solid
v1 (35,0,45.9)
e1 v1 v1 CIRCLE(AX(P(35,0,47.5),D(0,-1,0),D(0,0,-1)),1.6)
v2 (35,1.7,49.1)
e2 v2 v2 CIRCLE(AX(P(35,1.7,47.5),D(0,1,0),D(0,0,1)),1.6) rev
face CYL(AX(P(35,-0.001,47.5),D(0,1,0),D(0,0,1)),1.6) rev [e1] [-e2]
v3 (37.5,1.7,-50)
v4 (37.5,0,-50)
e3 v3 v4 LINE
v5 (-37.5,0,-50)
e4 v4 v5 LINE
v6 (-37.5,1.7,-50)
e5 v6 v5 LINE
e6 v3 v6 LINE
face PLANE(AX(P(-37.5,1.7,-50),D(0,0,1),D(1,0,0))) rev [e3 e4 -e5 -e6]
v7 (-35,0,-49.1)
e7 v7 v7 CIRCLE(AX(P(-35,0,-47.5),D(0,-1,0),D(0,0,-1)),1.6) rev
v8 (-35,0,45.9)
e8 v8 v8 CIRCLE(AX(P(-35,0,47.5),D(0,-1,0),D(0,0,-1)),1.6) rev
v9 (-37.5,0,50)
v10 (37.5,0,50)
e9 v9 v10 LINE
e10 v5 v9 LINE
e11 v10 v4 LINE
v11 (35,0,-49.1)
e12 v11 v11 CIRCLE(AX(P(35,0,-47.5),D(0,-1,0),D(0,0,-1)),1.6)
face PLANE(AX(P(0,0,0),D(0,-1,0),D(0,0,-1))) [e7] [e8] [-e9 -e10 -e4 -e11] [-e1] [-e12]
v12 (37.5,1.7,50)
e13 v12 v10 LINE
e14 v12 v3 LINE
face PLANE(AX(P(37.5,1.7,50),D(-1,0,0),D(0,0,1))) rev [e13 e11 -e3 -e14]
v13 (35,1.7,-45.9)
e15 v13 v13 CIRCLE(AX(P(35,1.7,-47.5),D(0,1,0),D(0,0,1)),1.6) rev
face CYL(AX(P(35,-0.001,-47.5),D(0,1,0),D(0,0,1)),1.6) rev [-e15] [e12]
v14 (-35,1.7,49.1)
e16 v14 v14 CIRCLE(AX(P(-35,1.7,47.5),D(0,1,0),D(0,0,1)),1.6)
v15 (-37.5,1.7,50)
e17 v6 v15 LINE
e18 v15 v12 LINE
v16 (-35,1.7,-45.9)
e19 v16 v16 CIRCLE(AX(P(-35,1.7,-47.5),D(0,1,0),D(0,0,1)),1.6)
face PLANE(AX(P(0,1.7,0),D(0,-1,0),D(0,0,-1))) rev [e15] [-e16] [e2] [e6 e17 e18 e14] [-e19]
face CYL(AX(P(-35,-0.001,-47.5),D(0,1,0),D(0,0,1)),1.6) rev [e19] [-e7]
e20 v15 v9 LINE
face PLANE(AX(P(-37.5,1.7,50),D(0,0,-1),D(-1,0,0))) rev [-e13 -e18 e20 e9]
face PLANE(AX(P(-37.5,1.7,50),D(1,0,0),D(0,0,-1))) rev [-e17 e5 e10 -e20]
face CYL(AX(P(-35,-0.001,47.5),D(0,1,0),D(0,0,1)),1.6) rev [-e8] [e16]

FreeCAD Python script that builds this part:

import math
import FreeCAD as App
import Part
import Sketcher
from FreeCAD import Vector


def add_polygon(sketch, points):
    """Adds a closed chain of lines whose ends are joined by coincident constraints."""
    first, n = sketch.GeometryCount, len(points)
    for a, b in zip(points, points[1:] + points[:1]):
        sketch.addGeometry(Part.LineSegment(App.Vector(*a, 0), App.Vector(*b, 0)), False)
    for i in range(n):
        sketch.addConstraint(Sketcher.Constraint("Coincident", first + i, 2, first + (i + 1) % n, 1))

doc = App.newDocument("Part")
body = doc.addObject("PartDesign::Body", "Body")

# Sketch on XZ plane
sketch1 = body.newObject("Sketcher::SketchObject", "Sketch")
sketch1.AttachmentSupport = (doc.getObject("XZ_Plane"), [""])
sketch1.MapMode = "FlatFace"
add_polygon(sketch1, [(-38, -50), (-38, 50), (38, 50), (38, -50)])  # lines 0-3
sketch1.addConstraint(Sketcher.Constraint("Vertical", 0))
sketch1.addConstraint(Sketcher.Constraint("Horizontal", 1))
sketch1.addConstraint(Sketcher.Constraint("Vertical", 2))
sketch1.addConstraint(Sketcher.Constraint("Horizontal", 3))
sketch1.addConstraint(Sketcher.Constraint("Symmetric", 0, 2, 2, 2, -1, 1))
sketch1.addConstraint(Sketcher.Constraint("DistanceX", 1, 1, 1, 2, 75.0))
sketch1.addConstraint(Sketcher.Constraint("DistanceY", 0, 1, 0, 2, 100.0))
pad1 = body.newObject("PartDesign::Pad", "Pad")
pad1.Profile = sketch1
pad1.Length = 1.7
pad1.Reversed = True

# Sketch on XZ plane
sketch2 = body.newObject("Sketcher::SketchObject", "Sketch001")
sketch2.AttachmentSupport = (doc.getObject("XZ_Plane"), [""])
sketch2.MapMode = "FlatFace"
sketch2.AttachmentOffset = App.Placement(Vector(0, 0, -1.7), App.Rotation())
sketch2.addGeometry(Part.ArcOfCircle(Part.Circle(Vector(-35, -47.5, 0), Vector(0, 0, 1), 1.6), math.radians(90), math.radians(360)), False)
sketch2.addGeometry(Part.LineSegment(Vector(-35, -45.9, 0), Vector(-35, -47.5, 0)), False)
sketch2.addGeometry(Part.LineSegment(Vector(-35, -47.5, 0), Vector(-33.4, -47.5, 0)), False)
sketch2.addConstraint(Sketcher.Constraint("Coincident", 0, 1, 1, 1))
sketch2.addConstraint(Sketcher.Constraint("Coincident", 1, 2, 2, 1))
sketch2.addConstraint(Sketcher.Constraint("Coincident", 2, 2, 0, 2))
sketch2.addConstraint(Sketcher.Constraint("Vertical", 1))
sketch2.addConstraint(Sketcher.Constraint("Horizontal", 2))
sketch2.addConstraint(Sketcher.Constraint("Coincident", 1, 2, 0, 3))
sketch2.addConstraint(Sketcher.Constraint("Radius", 0, 1.6))
sketch2.addConstraint(Sketcher.Constraint("DistanceX", 0, 3, -1, 1, 35.0))
sketch2.addConstraint(Sketcher.Constraint("DistanceY", 0, 3, -1, 1, 47.5))
pocket1 = body.newObject("PartDesign::Pocket", "Pocket")
pocket1.Profile = sketch2
pocket1.Type = "UpToFirst"
pocket1.Reversed = True

# Sketch on XZ plane
sketch3 = body.newObject("Sketcher::SketchObject", "Sketch002")
sketch3.AttachmentSupport = (doc.getObject("XZ_Plane"), [""])
sketch3.MapMode = "FlatFace"
sketch3.AttachmentOffset = App.Placement(Vector(0, 0, -1.7), App.Rotation())
sketch3.addGeometry(Part.LineSegment(Vector(-35, -47.5, 0), Vector(-35, -45.9, 0)), False)
sketch3.addGeometry(Part.ArcOfCircle(Part.Circle(Vector(-35, -47.5, 0), Vector(0, 0, 1), 1.6), math.radians(0), math.radians(90)), False)
sketch3.addGeometry(Part.LineSegment(Vector(-33.4, -47.5, 0), Vector(-35, -47.5, 0)), False)
sketch3.addConstraint(Sketcher.Constraint("Coincident", 0, 2, 1, 2))
sketch3.addConstraint(Sketcher.Constraint("Coincident", 1, 1, 2, 1))
sketch3.addConstraint(Sketcher.Constraint("Coincident", 2, 2, 0, 1))
sketch3.addConstraint(Sketcher.Constraint("Vertical", 0))
sketch3.addConstraint(Sketcher.Constraint("Horizontal", 2))
sketch3.addConstraint(Sketcher.Constraint("Coincident", 2, 2, 1, 3))
sketch3.addConstraint(Sketcher.Constraint("Radius", 1, 1.6))
sketch3.addConstraint(Sketcher.Constraint("DistanceX", 1, 3, -1, 1, 35.0))
sketch3.addConstraint(Sketcher.Constraint("DistanceY", 1, 3, -1, 1, 47.5))
pocket2 = body.newObject("PartDesign::Pocket", "Pocket001")
pocket2.Profile = sketch3
pocket2.Type = "UpToFirst"
pocket2.Reversed = True

# Sketch on XZ plane
sketch4 = body.newObject("Sketcher::SketchObject", "Sketch003")
sketch4.AttachmentSupport = (doc.getObject("XZ_Plane"), [""])
sketch4.MapMode = "FlatFace"
sketch4.AttachmentOffset = App.Placement(Vector(0, 0, -1.7), App.Rotation())
sketch4.addGeometry(Part.ArcOfCircle(Part.Circle(Vector(-35, -47.5, 0), Vector(0, 0, 1), 1.6), math.radians(90), math.radians(360)), False)
sketch4.addGeometry(Part.LineSegment(Vector(-35, -45.9, 0), Vector(-35, -47.5, 0)), False)
sketch4.addGeometry(Part.LineSegment(Vector(-35, -47.5, 0), Vector(-33.4, -47.5, 0)), False)
sketch4.addConstraint(Sketcher.Constraint("Coincident", 0, 1, 1, 1))
sketch4.addConstraint(Sketcher.Constraint("Coincident", 1, 2, 2, 1))
sketch4.addConstraint(Sketcher.Constraint("Coincident", 2, 2, 0, 2))
sketch4.addConstraint(Sketcher.Constraint("Vertical", 1))
sketch4.addConstraint(Sketcher.Constraint("Horizontal", 2))
sketch4.addConstraint(Sketcher.Constraint("Coincident", 1, 2, 0, 3))
sketch4.addConstraint(Sketcher.Constraint("Radius", 0, 1.6))
sketch4.addConstraint(Sketcher.Constraint("DistanceX", 0, 3, -1, 1, 35.0))
sketch4.addConstraint(Sketcher.Constraint("DistanceY", 0, 3, -1, 1, 47.5))
pocket3 = body.newObject("PartDesign::Pocket", "Pocket002")
pocket3.Profile = sketch4
pocket3.Length = 1.7
pocket3.Reversed = True

# Sketch on XZ plane
sketch5 = body.newObject("Sketcher::SketchObject", "Sketch004")
sketch5.AttachmentSupport = (doc.getObject("XZ_Plane"), [""])
sketch5.MapMode = "FlatFace"
sketch5.AttachmentOffset = App.Placement(Vector(0, 0, -1.7), App.Rotation())
sketch5.addGeometry(Part.LineSegment(Vector(-35, -47.5, 0), Vector(-35, -45.9, 0)), False)
sketch5.addGeometry(Part.ArcOfCircle(Part.Circle(Vector(-35, -47.5, 0), Vector(0, 0, 1), 1.6), math.radians(0), math.radians(90)), False)
sketch5.addGeometry(Part.LineSegment(Vector(-33.4, -47.5, 0), Vector(-35, -47.5, 0)), False)
sketch5.addConstraint(Sketcher.Constraint("Coincident", 0, 2, 1, 2))
sketch5.addConstraint(Sketcher.Constraint("Coincident", 1, 1, 2, 1))
sketch5.addConstraint(Sketcher.Constraint("Coincident", 2, 2, 0, 1))
sketch5.addConstraint(Sketcher.Constraint("Vertical", 0))
sketch5.addConstraint(Sketcher.Constraint("Horizontal", 2))
sketch5.addConstraint(Sketcher.Constraint("Coincident", 2, 2, 1, 3))
sketch5.addConstraint(Sketcher.Constraint("Radius", 1, 1.6))
sketch5.addConstraint(Sketcher.Constraint("DistanceX", 1, 3, -1, 1, 35.0))
sketch5.addConstraint(Sketcher.Constraint("DistanceY", 1, 3, -1, 1, 47.5))
pocket4 = body.newObject("PartDesign::Pocket", "Pocket003")
pocket4.Profile = sketch5
pocket4.Length = 1.7
pocket4.Reversed = True

# Sketch on XZ plane
sketch6 = body.newObject("Sketcher::SketchObject", "Sketch005")
sketch6.AttachmentSupport = (doc.getObject("XZ_Plane"), [""])
sketch6.MapMode = "FlatFace"
sketch6.AttachmentOffset = App.Placement(Vector(0, 0, -1.7), App.Rotation())
sketch6.addGeometry(Part.ArcOfCircle(Part.Circle(Vector(35, -47.5, 0), Vector(0, 0, 1), 1.6), math.radians(90), math.radians(180)), False)
sketch6.addGeometry(Part.LineSegment(Vector(35, -45.9, 0), Vector(35, -47.5, 0)), False)
sketch6.addGeometry(Part.LineSegment(Vector(35, -47.5, 0), Vector(33.4, -47.5, 0)), False)
sketch6.addConstraint(Sketcher.Constraint("Coincident", 0, 1, 1, 1))
sketch6.addConstraint(Sketcher.Constraint("Coincident", 1, 2, 2, 1))
sketch6.addConstraint(Sketcher.Constraint("Coincident", 2, 2, 0, 2))
sketch6.addConstraint(Sketcher.Constraint("Vertical", 1))
sketch6.addConstraint(Sketcher.Constraint("Horizontal", 2))
sketch6.addConstraint(Sketcher.Constraint("Coincident", 1, 2, 0, 3))
sketch6.addConstraint(Sketcher.Constraint("Radius", 0, 1.6))
sketch6.addConstraint(Sketcher.Constraint("DistanceX", -1, 1, 0, 3, 35.0))
sketch6.addConstraint(Sketcher.Constraint("DistanceY", 0, 3, -1, 1, 47.5))
pocket5 = body.newObject("PartDesign::Pocket", "Pocket004")
pocket5.Profile = sketch6
pocket5.Type = "UpToFirst"
pocket5.Reversed = True

# Sketch on XZ plane
sketch7 = body.newObject("Sketcher::SketchObject", "Sketch006")
sketch7.AttachmentSupport = (doc.getObject("XZ_Plane"), [""])
sketch7.MapMode = "FlatFace"
sketch7.AttachmentOffset = App.Placement(Vector(0, 0, -1.7), App.Rotation())
sketch7.addGeometry(Part.LineSegment(Vector(35, -47.5, 0), Vector(35, -45.9, 0)), False)
sketch7.addGeometry(Part.ArcOfCircle(Part.Circle(Vector(35, -47.5, 0), Vector(0, 0, 1), 1.6), math.radians(0), math.radians(90)), False)
sketch7.addGeometry(Part.ArcOfCircle(Part.Circle(Vector(35, -47.5, 0), Vector(0, 0, 1), 1.6), math.radians(180), math.radians(360)), False)
sketch7.addGeometry(Part.LineSegment(Vector(33.4, -47.5, 0), Vector(35, -47.5, 0)), False)
sketch7.addConstraint(Sketcher.Constraint("Coincident", 0, 2, 1, 2))
sketch7.addConstraint(Sketcher.Constraint("Tangent", 1, 1, 2, 2))
sketch7.addConstraint(Sketcher.Constraint("Coincident", 2, 1, 3, 1))
sketch7.addConstraint(Sketcher.Constraint("Coincident", 3, 2, 0, 1))
sketch7.addConstraint(Sketcher.Constraint("Vertical", 0))
sketch7.addConstraint(Sketcher.Constraint("Horizontal", 3))
sketch7.addConstraint(Sketcher.Constraint("Coincident", 3, 2, 1, 3))
sketch7.addConstraint(Sketcher.Constraint("Equal", 1, 2))
sketch7.addConstraint(Sketcher.Constraint("Horizontal", 2, 3, 1, 1))
sketch7.addConstraint(Sketcher.Constraint("Radius", 1, 1.6))
sketch7.addConstraint(Sketcher.Constraint("DistanceX", -1, 1, 1, 3, 35.0))
sketch7.addConstraint(Sketcher.Constraint("DistanceY", 1, 3, -1, 1, 47.5))
pocket6 = body.newObject("PartDesign::Pocket", "Pocket005")
pocket6.Profile = sketch7
pocket6.Type = "UpToFirst"
pocket6.Reversed = True

# Sketch on XZ plane
sketch8 = body.newObject("Sketcher::SketchObject", "Sketch007")
sketch8.AttachmentSupport = (doc.getObject("XZ_Plane"), [""])
sketch8.MapMode = "FlatFace"
sketch8.AttachmentOffset = App.Placement(Vector(0, 0, -1.7), App.Rotation())
sketch8.addGeometry(Part.ArcOfCircle(Part.Circle(Vector(35, -47.5, 0), Vector(0, 0, 1), 1.6), math.radians(90), math.radians(180)), False)
sketch8.addGeometry(Part.LineSegment(Vector(35, -45.9, 0), Vector(35, -47.5, 0)), False)
sketch8.addGeometry(Part.LineSegment(Vector(35, -47.5, 0), Vector(33.4, -47.5, 0)), False)
sketch8.addConstraint(Sketcher.Constraint("Coincident", 0, 1, 1, 1))
sketch8.addConstraint(Sketcher.Constraint("Coincident", 1, 2, 2, 1))
sketch8.addConstraint(Sketcher.Constraint("Coincident", 2, 2, 0, 2))
sketch8.addConstraint(Sketcher.Constraint("Vertical", 1))
sketch8.addConstraint(Sketcher.Constraint("Horizontal", 2))
sketch8.addConstraint(Sketcher.Constraint("Coincident", 1, 2, 0, 3))
sketch8.addConstraint(Sketcher.Constraint("Radius", 0, 1.6))
sketch8.addConstraint(Sketcher.Constraint("DistanceX", -1, 1, 0, 3, 35.0))
sketch8.addConstraint(Sketcher.Constraint("DistanceY", 0, 3, -1, 1, 47.5))
pocket7 = body.newObject("PartDesign::Pocket", "Pocket006")
pocket7.Profile = sketch8
pocket7.Length = 1.7
pocket7.Reversed = True

# Sketch on XZ plane
sketch9 = body.newObject("Sketcher::SketchObject", "Sketch008")
sketch9.AttachmentSupport = (doc.getObject("XZ_Plane"), [""])
sketch9.MapMode = "FlatFace"
sketch9.AttachmentOffset = App.Placement(Vector(0, 0, -1.7), App.Rotation())
sketch9.addGeometry(Part.LineSegment(Vector(35, -47.5, 0), Vector(35, -45.9, 0)), False)
sketch9.addGeometry(Part.ArcOfCircle(Part.Circle(Vector(35, -47.5, 0), Vector(0, 0, 1), 1.6), math.radians(0), math.radians(90)), False)
sketch9.addGeometry(Part.ArcOfCircle(Part.Circle(Vector(35, -47.5, 0), Vector(0, 0, 1), 1.6), math.radians(180), math.radians(360)), False)
sketch9.addGeometry(Part.LineSegment(Vector(33.4, -47.5, 0), Vector(35, -47.5, 0)), False)
sketch9.addConstraint(Sketcher.Constraint("Coincident", 0, 2, 1, 2))
sketch9.addConstraint(Sketcher.Constraint("Tangent", 1, 1, 2, 2))
sketch9.addConstraint(Sketcher.Constraint("Coincident", 2, 1, 3, 1))
sketch9.addConstraint(Sketcher.Constraint("Coincident", 3, 2, 0, 1))
sketch9.addConstraint(Sketcher.Constraint("Vertical", 0))
sketch9.addConstraint(Sketcher.Constraint("Horizontal", 3))
sketch9.addConstraint(Sketcher.Constraint("Coincident", 3, 2, 1, 3))
sketch9.addConstraint(Sketcher.Constraint("Equal", 1, 2))
sketch9.addConstraint(Sketcher.Constraint("Horizontal", 2, 3, 1, 1))
sketch9.addConstraint(Sketcher.Constraint("Radius", 1, 1.6))
sketch9.addConstraint(Sketcher.Constraint("DistanceX", -1, 1, 1, 3, 35.0))
sketch9.addConstraint(Sketcher.Constraint("DistanceY", 1, 3, -1, 1, 47.5))
pocket8 = body.newObject("PartDesign::Pocket", "Pocket007")
pocket8.Profile = sketch9
pocket8.Length = 1.7
pocket8.Reversed = True

# Sketch on XZ plane
sketch10 = body.newObject("Sketcher::SketchObject", "Sketch009")
sketch10.AttachmentSupport = (doc.getObject("XZ_Plane"), [""])
sketch10.MapMode = "FlatFace"
sketch10.AttachmentOffset = App.Placement(Vector(0, 0, -1.7), App.Rotation())
sketch10.addGeometry(Part.LineSegment(Vector(-35, 45.9, 0), Vector(-35, 47.5, 0)), False)
sketch10.addGeometry(Part.LineSegment(Vector(-35, 47.5, 0), Vector(-33.4, 47.5, 0)), False)
sketch10.addGeometry(Part.ArcOfCircle(Part.Circle(Vector(-35, 47.5, 0), Vector(0, 0, 1), 1.6), math.radians(-90), math.radians(0)), False)
sketch10.addConstraint(Sketcher.Constraint("Coincident", 0, 2, 1, 1))
sketch10.addConstraint(Sketcher.Constraint("Coincident", 1, 2, 2, 2))
sketch10.addConstraint(Sketcher.Constraint("Coincident", 2, 1, 0, 1))
sketch10.addConstraint(Sketcher.Constraint("Vertical", 0))
sketch10.addConstraint(Sketcher.Constraint("Horizontal", 1))
sketch10.addConstraint(Sketcher.Constraint("Coincident", 0, 2, 2, 3))
sketch10.addConstraint(Sketcher.Constraint("Radius", 2, 1.6))
sketch10.addConstraint(Sketcher.Constraint("DistanceX", 2, 3, -1, 1, 35.0))
sketch10.addConstraint(Sketcher.Constraint("DistanceY", -1, 1, 2, 3, 47.5))
pocket9 = body.newObject("PartDesign::Pocket", "Pocket008")
pocket9.Profile = sketch10
pocket9.Type = "UpToFirst"
pocket9.Reversed = True

# Sketch on XZ plane
sketch11 = body.newObject("Sketcher::SketchObject", "Sketch010")
sketch11.AttachmentSupport = (doc.getObject("XZ_Plane"), [""])
sketch11.MapMode = "FlatFace"
sketch11.AttachmentOffset = App.Placement(Vector(0, 0, -1.7), App.Rotation())
sketch11.addGeometry(Part.LineSegment(Vector(-33.4, 47.5, 0), Vector(-35, 47.5, 0)), False)
sketch11.addGeometry(Part.LineSegment(Vector(-35, 47.5, 0), Vector(-35, 45.9, 0)), False)
sketch11.addGeometry(Part.ArcOfCircle(Part.Circle(Vector(-35, 47.5, 0), Vector(0, 0, 1), 1.6), math.radians(0), math.radians(270)), False)
sketch11.addConstraint(Sketcher.Constraint("Coincident", 0, 2, 1, 1))
sketch11.addConstraint(Sketcher.Constraint("Coincident", 1, 2, 2, 2))
sketch11.addConstraint(Sketcher.Constraint("Coincident", 2, 1, 0, 1))
sketch11.addConstraint(Sketcher.Constraint("Horizontal", 0))
sketch11.addConstraint(Sketcher.Constraint("Vertical", 1))
sketch11.addConstraint(Sketcher.Constraint("Coincident", 0, 2, 2, 3))
sketch11.addConstraint(Sketcher.Constraint("Radius", 2, 1.6))
sketch11.addConstraint(Sketcher.Constraint("DistanceX", 2, 3, -1, 1, 35.0))
sketch11.addConstraint(Sketcher.Constraint("DistanceY", -1, 1, 2, 3, 47.5))
pocket10 = body.newObject("PartDesign::Pocket", "Pocket009")
pocket10.Profile = sketch11
pocket10.Type = "UpToFirst"
pocket10.Reversed = True

# Sketch on XZ plane
sketch12 = body.newObject("Sketcher::SketchObject", "Sketch011")
sketch12.AttachmentSupport = (doc.getObject("XZ_Plane"), [""])
sketch12.MapMode = "FlatFace"
sketch12.AttachmentOffset = App.Placement(Vector(0, 0, -1.7), App.Rotation())
sketch12.addGeometry(Part.LineSegment(Vector(-35, 45.9, 0), Vector(-35, 47.5, 0)), False)
sketch12.addGeometry(Part.LineSegment(Vector(-35, 47.5, 0), Vector(-33.4, 47.5, 0)), False)
sketch12.addGeometry(Part.ArcOfCircle(Part.Circle(Vector(-35, 47.5, 0), Vector(0, 0, 1), 1.6), math.radians(-90), math.radians(0)), False)
sketch12.addConstraint(Sketcher.Constraint("Coincident", 0, 2, 1, 1))
sketch12.addConstraint(Sketcher.Constraint("Coincident", 1, 2, 2, 2))
sketch12.addConstraint(Sketcher.Constraint("Coincident", 2, 1, 0, 1))
sketch12.addConstraint(Sketcher.Constraint("Vertical", 0))
sketch12.addConstraint(Sketcher.Constraint("Horizontal", 1))
sketch12.addConstraint(Sketcher.Constraint("Coincident", 0, 2, 2, 3))
sketch12.addConstraint(Sketcher.Constraint("Radius", 2, 1.6))
sketch12.addConstraint(Sketcher.Constraint("DistanceX", 2, 3, -1, 1, 35.0))
sketch12.addConstraint(Sketcher.Constraint("DistanceY", -1, 1, 2, 3, 47.5))
pocket11 = body.newObject("PartDesign::Pocket", "Pocket010")
pocket11.Profile = sketch12
pocket11.Length = 1.7
pocket11.Reversed = True

# Sketch on XZ plane
sketch13 = body.newObject("Sketcher::SketchObject", "Sketch012")
sketch13.AttachmentSupport = (doc.getObject("XZ_Plane"), [""])
sketch13.MapMode = "FlatFace"
sketch13.AttachmentOffset = App.Placement(Vector(0, 0, -1.7), App.Rotation())
sketch13.addGeometry(Part.LineSegment(Vector(-33.4, 47.5, 0), Vector(-35, 47.5, 0)), False)
sketch13.addGeometry(Part.LineSegment(Vector(-35, 47.5, 0), Vector(-35, 45.9, 0)), False)
sketch13.addGeometry(Part.ArcOfCircle(Part.Circle(Vector(-35, 47.5, 0), Vector(0, 0, 1), 1.6), math.radians(0), math.radians(270)), False)
sketch13.addConstraint(Sketcher.Constraint("Coincident", 0, 2, 1, 1))
sketch13.addConstraint(Sketcher.Constraint("Coincident", 1, 2, 2, 2))
sketch13.addConstraint(Sketcher.Constraint("Coincident", 2, 1, 0, 1))
sketch13.addConstraint(Sketcher.Constraint("Horizontal", 0))
sketch13.addConstraint(Sketcher.Constraint("Vertical", 1))
sketch13.addConstraint(Sketcher.Constraint("Coincident", 0, 2, 2, 3))
sketch13.addConstraint(Sketcher.Constraint("Radius", 2, 1.6))
sketch13.addConstraint(Sketcher.Constraint("DistanceX", 2, 3, -1, 1, 35.0))
sketch13.addConstraint(Sketcher.Constraint("DistanceY", -1, 1, 2, 3, 47.5))
pocket12 = body.newObject("PartDesign::Pocket", "Pocket011")
pocket12.Profile = sketch13
pocket12.Length = 1.7
pocket12.Reversed = True

# Sketch on XZ plane
sketch14 = body.newObject("Sketcher::SketchObject", "Sketch013")
sketch14.AttachmentSupport = (doc.getObject("XZ_Plane"), [""])
sketch14.MapMode = "FlatFace"
sketch14.AttachmentOffset = App.Placement(Vector(0, 0, -1.7), App.Rotation())
sketch14.addGeometry(Part.ArcOfCircle(Part.Circle(Vector(35, 47.5, 0), Vector(0, 0, 1), 1.6), math.radians(180), math.radians(270)), False)
sketch14.addGeometry(Part.LineSegment(Vector(33.4, 47.5, 0), Vector(35, 47.5, 0)), False)
sketch14.addGeometry(Part.LineSegment(Vector(35, 47.5, 0), Vector(35, 45.9, 0)), False)
sketch14.addConstraint(Sketcher.Constraint("Coincident", 0, 1, 1, 1))
sketch14.addConstraint(Sketcher.Constraint("Coincident", 1, 2, 2, 1))
sketch14.addConstraint(Sketcher.Constraint("Coincident", 2, 2, 0, 2))
sketch14.addConstraint(Sketcher.Constraint("Horizontal", 1))
sketch14.addConstraint(Sketcher.Constraint("Vertical", 2))
sketch14.addConstraint(Sketcher.Constraint("Coincident", 1, 2, 0, 3))
sketch14.addConstraint(Sketcher.Constraint("Radius", 0, 1.6))
sketch14.addConstraint(Sketcher.Constraint("DistanceX", -1, 1, 0, 3, 35.0))
sketch14.addConstraint(Sketcher.Constraint("DistanceY", -1, 1, 0, 3, 47.5))
pocket13 = body.newObject("PartDesign::Pocket", "Pocket012")
pocket13.Profile = sketch14
pocket13.Type = "UpToFirst"
pocket13.Reversed = True

# Sketch on XZ plane
sketch15 = body.newObject("Sketcher::SketchObject", "Sketch014")
sketch15.AttachmentSupport = (doc.getObject("XZ_Plane"), [""])
sketch15.MapMode = "FlatFace"
sketch15.AttachmentOffset = App.Placement(Vector(0, 0, -1.7), App.Rotation())
sketch15.addGeometry(Part.LineSegment(Vector(35, 47.5, 0), Vector(33.4, 47.5, 0)), False)
sketch15.addGeometry(Part.ArcOfCircle(Part.Circle(Vector(35, 47.5, 0), Vector(0, 0, 1), 1.6), math.radians(0), math.radians(180)), False)
sketch15.addGeometry(Part.ArcOfCircle(Part.Circle(Vector(35, 47.5, 0), Vector(0, 0, 1), 1.6), math.radians(-90), math.radians(0)), False)
sketch15.addGeometry(Part.LineSegment(Vector(35, 45.9, 0), Vector(35, 47.5, 0)), False)
sketch15.addConstraint(Sketcher.Constraint("Coincident", 0, 2, 1, 2))
sketch15.addConstraint(Sketcher.Constraint("Tangent", 1, 1, 2, 2))
sketch15.addConstraint(Sketcher.Constraint("Coincident", 2, 1, 3, 1))
sketch15.addConstraint(Sketcher.Constraint("Coincident", 3, 2, 0, 1))
sketch15.addConstraint(Sketcher.Constraint("Horizontal", 0))
sketch15.addConstraint(Sketcher.Constraint("Vertical", 3))
sketch15.addConstraint(Sketcher.Constraint("Coincident", 3, 2, 1, 3))
sketch15.addConstraint(Sketcher.Constraint("Equal", 1, 2))
sketch15.addConstraint(Sketcher.Constraint("Horizontal", 0, 2, 1, 1))
sketch15.addConstraint(Sketcher.Constraint("Radius", 1, 1.6))
sketch15.addConstraint(Sketcher.Constraint("DistanceX", -1, 1, 1, 3, 35.0))
sketch15.addConstraint(Sketcher.Constraint("DistanceY", -1, 1, 1, 3, 47.5))
pocket14 = body.newObject("PartDesign::Pocket", "Pocket013")
pocket14.Profile = sketch15
pocket14.Type = "UpToFirst"
pocket14.Reversed = True

# Sketch on XZ plane
sketch16 = body.newObject("Sketcher::SketchObject", "Sketch015")
sketch16.AttachmentSupport = (doc.getObject("XZ_Plane"), [""])
sketch16.MapMode = "FlatFace"
sketch16.AttachmentOffset = App.Placement(Vector(0, 0, -1.7), App.Rotation())
sketch16.addGeometry(Part.ArcOfCircle(Part.Circle(Vector(35, 47.5, 0), Vector(0, 0, 1), 1.6), math.radians(180), math.radians(270)), False)
sketch16.addGeometry(Part.LineSegment(Vector(33.4, 47.5, 0), Vector(35, 47.5, 0)), False)
sketch16.addGeometry(Part.LineSegment(Vector(35, 47.5, 0), Vector(35, 45.9, 0)), False)
sketch16.addConstraint(Sketcher.Constraint("Coincident", 0, 1, 1, 1))
sketch16.addConstraint(Sketcher.Constraint("Coincident", 1, 2, 2, 1))
sketch16.addConstraint(Sketcher.Constraint("Coincident", 2, 2, 0, 2))
sketch16.addConstraint(Sketcher.Constraint("Horizontal", 1))
sketch16.addConstraint(Sketcher.Constraint("Vertical", 2))
sketch16.addConstraint(Sketcher.Constraint("Coincident", 1, 2, 0, 3))
sketch16.addConstraint(Sketcher.Constraint("Radius", 0, 1.6))
sketch16.addConstraint(Sketcher.Constraint("DistanceX", -1, 1, 0, 3, 35.0))
sketch16.addConstraint(Sketcher.Constraint("DistanceY", -1, 1, 0, 3, 47.5))
pocket15 = body.newObject("PartDesign::Pocket", "Pocket014")
pocket15.Profile = sketch16
pocket15.Length = 1.7
pocket15.Reversed = True

# Sketch on XZ plane
sketch17 = body.newObject("Sketcher::SketchObject", "Sketch016")
sketch17.AttachmentSupport = (doc.getObject("XZ_Plane"), [""])
sketch17.MapMode = "FlatFace"
sketch17.AttachmentOffset = App.Placement(Vector(0, 0, -1.7), App.Rotation())
sketch17.addGeometry(Part.LineSegment(Vector(35, 47.5, 0), Vector(33.4, 47.5, 0)), False)
sketch17.addGeometry(Part.ArcOfCircle(Part.Circle(Vector(35, 47.5, 0), Vector(0, 0, 1), 1.6), math.radians(0), math.radians(180)), False)
sketch17.addGeometry(Part.ArcOfCircle(Part.Circle(Vector(35, 47.5, 0), Vector(0, 0, 1), 1.6), math.radians(-90), math.radians(0)), False)
sketch17.addGeometry(Part.LineSegment(Vector(35, 45.9, 0), Vector(35, 47.5, 0)), False)
sketch17.addConstraint(Sketcher.Constraint("Coincident", 0, 2, 1, 2))
sketch17.addConstraint(Sketcher.Constraint("Tangent", 1, 1, 2, 2))
sketch17.addConstraint(Sketcher.Constraint("Coincident", 2, 1, 3, 1))
sketch17.addConstraint(Sketcher.Constraint("Coincident", 3, 2, 0, 1))
sketch17.addConstraint(Sketcher.Constraint("Horizontal", 0))
sketch17.addConstraint(Sketcher.Constraint("Vertical", 3))
sketch17.addConstraint(Sketcher.Constraint("Coincident", 3, 2, 1, 3))
sketch17.addConstraint(Sketcher.Constraint("Equal", 1, 2))
sketch17.addConstraint(Sketcher.Constraint("Horizontal", 0, 2, 1, 1))
sketch17.addConstraint(Sketcher.Constraint("Radius", 1, 1.6))
sketch17.addConstraint(Sketcher.Constraint("DistanceX", -1, 1, 1, 3, 35.0))
sketch17.addConstraint(Sketcher.Constraint("DistanceY", -1, 1, 1, 3, 47.5))
pocket16 = body.newObject("PartDesign::Pocket", "Pocket015")
pocket16.Profile = sketch17
pocket16.Length = 1.7
pocket16.Reversed = True

doc.recompute()
